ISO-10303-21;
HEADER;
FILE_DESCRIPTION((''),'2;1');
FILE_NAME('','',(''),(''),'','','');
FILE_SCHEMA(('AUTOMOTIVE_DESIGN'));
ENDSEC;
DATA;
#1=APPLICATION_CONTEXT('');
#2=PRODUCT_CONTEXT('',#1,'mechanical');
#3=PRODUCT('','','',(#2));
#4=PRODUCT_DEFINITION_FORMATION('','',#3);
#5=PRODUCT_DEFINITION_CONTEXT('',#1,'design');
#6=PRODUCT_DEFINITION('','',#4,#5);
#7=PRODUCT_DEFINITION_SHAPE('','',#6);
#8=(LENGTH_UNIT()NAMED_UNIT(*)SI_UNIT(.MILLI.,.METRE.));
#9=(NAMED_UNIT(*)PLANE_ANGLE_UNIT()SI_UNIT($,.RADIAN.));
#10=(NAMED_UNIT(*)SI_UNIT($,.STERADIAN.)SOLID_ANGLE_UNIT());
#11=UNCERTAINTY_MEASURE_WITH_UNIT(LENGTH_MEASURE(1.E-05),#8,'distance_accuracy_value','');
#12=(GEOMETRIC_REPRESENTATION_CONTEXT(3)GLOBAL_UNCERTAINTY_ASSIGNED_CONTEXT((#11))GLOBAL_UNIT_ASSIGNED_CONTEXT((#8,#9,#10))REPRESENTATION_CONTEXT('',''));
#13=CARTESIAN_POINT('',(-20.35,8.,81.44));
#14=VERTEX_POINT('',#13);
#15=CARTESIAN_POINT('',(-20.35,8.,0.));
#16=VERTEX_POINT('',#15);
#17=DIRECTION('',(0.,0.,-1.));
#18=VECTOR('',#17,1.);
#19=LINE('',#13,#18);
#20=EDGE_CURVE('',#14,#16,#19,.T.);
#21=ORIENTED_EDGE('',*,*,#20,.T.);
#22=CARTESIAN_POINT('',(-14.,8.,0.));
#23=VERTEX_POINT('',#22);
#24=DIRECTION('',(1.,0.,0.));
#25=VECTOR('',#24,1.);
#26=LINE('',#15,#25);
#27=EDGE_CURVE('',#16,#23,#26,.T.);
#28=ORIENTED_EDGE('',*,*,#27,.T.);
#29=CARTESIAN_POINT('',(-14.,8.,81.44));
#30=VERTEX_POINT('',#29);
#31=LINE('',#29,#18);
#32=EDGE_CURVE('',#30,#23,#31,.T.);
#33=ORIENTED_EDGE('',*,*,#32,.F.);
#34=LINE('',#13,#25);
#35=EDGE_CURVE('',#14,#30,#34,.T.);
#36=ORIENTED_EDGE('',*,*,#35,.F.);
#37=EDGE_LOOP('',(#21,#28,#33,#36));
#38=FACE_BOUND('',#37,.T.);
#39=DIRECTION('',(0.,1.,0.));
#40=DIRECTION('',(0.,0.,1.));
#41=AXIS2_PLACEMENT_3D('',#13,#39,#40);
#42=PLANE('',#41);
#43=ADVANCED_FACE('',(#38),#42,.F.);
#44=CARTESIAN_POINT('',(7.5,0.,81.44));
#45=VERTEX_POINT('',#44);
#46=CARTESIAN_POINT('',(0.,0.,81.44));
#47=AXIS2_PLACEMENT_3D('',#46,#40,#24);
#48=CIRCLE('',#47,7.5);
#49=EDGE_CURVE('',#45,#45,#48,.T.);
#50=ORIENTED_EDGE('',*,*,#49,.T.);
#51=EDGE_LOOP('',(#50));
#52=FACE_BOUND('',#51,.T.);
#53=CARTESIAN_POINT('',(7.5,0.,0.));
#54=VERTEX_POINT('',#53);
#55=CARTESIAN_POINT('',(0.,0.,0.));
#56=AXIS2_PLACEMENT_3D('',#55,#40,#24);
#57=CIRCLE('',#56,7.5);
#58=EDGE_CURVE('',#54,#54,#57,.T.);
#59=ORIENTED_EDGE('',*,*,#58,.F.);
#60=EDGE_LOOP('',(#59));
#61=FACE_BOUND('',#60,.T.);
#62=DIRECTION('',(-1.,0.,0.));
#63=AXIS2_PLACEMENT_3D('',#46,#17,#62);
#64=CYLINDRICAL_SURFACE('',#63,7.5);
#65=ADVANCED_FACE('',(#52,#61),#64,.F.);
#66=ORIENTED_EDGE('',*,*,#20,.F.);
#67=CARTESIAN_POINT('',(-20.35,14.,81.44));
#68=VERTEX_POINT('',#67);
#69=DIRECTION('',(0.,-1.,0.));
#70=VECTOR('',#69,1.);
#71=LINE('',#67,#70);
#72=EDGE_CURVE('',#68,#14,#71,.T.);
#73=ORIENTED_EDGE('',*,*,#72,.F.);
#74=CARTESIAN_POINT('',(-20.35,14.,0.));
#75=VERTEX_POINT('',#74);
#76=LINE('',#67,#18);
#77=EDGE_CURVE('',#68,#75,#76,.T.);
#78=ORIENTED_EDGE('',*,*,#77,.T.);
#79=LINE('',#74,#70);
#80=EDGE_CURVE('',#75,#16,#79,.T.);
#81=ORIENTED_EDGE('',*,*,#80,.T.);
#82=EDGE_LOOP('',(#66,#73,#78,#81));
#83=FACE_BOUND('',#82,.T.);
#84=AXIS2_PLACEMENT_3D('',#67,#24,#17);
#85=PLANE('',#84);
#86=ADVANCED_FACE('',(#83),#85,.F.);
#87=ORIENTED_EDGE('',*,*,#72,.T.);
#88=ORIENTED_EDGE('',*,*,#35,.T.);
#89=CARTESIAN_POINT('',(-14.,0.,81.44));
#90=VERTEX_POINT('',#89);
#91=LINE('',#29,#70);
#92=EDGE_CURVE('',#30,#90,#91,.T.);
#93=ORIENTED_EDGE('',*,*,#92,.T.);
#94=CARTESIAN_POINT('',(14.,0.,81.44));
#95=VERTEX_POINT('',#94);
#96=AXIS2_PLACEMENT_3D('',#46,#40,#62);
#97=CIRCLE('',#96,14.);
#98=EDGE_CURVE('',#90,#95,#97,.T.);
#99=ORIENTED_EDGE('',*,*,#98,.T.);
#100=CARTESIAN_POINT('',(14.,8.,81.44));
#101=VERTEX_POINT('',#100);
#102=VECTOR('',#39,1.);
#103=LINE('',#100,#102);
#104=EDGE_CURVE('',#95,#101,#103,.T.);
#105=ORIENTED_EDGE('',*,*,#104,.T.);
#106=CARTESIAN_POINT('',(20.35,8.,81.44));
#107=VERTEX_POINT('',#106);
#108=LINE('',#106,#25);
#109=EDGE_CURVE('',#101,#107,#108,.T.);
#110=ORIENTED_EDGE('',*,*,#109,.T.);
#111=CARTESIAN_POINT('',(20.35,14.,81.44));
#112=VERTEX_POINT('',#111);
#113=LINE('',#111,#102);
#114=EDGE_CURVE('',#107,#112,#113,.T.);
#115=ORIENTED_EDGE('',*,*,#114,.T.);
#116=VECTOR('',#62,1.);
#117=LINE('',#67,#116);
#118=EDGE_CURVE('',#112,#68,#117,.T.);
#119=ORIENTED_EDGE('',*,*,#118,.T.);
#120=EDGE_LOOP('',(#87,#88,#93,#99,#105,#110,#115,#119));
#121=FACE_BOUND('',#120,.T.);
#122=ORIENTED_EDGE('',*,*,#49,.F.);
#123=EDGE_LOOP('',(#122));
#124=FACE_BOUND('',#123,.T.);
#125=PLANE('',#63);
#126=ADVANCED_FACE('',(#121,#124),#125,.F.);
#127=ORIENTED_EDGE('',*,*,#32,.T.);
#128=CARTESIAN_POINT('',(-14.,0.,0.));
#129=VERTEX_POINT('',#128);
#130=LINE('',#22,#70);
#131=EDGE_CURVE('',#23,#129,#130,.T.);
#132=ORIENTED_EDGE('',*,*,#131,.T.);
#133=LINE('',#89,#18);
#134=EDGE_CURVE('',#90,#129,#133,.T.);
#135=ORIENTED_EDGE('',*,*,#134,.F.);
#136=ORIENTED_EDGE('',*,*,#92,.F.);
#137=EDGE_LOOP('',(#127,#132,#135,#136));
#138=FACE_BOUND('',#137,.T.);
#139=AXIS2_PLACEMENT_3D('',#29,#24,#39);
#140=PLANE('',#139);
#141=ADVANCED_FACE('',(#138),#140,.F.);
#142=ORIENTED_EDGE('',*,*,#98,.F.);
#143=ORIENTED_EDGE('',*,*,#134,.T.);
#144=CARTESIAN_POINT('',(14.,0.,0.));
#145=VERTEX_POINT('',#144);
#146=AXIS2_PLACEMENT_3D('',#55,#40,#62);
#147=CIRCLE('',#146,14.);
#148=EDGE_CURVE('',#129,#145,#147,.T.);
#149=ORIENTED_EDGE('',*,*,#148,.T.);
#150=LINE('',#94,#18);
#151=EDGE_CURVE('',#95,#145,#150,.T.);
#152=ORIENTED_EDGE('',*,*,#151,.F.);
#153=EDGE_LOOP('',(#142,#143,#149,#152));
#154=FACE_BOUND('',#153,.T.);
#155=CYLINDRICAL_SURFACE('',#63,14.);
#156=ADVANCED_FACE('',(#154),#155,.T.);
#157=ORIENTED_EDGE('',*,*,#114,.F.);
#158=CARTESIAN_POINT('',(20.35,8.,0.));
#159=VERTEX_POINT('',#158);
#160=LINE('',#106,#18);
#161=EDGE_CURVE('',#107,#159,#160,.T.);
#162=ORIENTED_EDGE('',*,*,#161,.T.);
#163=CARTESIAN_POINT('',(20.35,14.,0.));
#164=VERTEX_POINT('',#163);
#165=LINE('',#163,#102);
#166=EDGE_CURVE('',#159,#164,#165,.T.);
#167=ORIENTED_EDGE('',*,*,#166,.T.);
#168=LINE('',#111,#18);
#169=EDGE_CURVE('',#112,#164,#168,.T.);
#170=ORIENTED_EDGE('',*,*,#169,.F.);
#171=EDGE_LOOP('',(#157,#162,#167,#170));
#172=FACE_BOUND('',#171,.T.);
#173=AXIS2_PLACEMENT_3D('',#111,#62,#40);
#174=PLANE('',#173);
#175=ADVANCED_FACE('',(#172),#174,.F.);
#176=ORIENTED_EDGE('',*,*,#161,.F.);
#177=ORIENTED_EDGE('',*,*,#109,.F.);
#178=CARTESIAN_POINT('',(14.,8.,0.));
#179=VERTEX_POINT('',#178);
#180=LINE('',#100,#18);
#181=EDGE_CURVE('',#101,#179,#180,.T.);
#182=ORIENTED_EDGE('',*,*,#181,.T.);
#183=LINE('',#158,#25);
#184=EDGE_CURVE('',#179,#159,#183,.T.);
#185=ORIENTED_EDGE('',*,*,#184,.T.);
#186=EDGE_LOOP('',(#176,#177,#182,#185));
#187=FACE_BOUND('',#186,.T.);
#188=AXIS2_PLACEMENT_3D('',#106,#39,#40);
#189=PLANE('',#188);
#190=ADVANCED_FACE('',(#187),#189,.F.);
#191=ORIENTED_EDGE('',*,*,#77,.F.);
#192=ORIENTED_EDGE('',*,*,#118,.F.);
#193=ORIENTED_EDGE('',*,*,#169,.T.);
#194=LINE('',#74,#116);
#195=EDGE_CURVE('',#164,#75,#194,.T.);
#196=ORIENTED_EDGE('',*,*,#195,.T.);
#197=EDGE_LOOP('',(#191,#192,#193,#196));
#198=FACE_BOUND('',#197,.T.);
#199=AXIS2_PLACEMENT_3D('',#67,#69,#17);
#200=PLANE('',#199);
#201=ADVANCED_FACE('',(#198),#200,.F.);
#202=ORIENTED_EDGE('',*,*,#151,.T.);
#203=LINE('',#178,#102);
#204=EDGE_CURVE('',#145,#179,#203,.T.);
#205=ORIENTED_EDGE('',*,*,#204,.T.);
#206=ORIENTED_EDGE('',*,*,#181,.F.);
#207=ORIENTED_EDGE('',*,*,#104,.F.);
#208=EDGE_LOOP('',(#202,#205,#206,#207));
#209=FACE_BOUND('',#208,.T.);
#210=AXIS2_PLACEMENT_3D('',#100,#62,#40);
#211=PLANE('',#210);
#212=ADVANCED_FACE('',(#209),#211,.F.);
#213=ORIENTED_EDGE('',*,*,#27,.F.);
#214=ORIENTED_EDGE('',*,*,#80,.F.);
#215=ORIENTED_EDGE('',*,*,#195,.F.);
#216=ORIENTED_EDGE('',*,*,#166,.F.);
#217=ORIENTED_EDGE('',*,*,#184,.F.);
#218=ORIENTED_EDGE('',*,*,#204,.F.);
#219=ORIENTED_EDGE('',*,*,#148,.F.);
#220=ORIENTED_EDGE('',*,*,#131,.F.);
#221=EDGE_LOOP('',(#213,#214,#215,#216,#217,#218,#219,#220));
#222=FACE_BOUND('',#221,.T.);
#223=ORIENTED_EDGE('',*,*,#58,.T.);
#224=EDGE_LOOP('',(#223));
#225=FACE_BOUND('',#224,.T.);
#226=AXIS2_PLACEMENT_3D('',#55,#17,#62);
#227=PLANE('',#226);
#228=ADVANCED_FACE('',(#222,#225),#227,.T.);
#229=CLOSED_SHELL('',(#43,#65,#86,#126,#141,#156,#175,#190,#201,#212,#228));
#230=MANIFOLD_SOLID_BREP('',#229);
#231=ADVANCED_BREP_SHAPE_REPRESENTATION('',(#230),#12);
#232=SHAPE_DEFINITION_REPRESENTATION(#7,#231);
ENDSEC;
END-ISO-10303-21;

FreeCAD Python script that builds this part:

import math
import FreeCAD as App
import Part
import Sketcher

V = App.Vector
Q = App.Units.Quantity

doc = App.newDocument("Part")
body = doc.addObject("PartDesign::Body", "Body")

sketch1 = doc.addObject("Sketcher::SketchObject", "Sketch")
body.addObject(sketch1)
sketch1.AttachmentSupport = (doc.XY_Plane, [""])
sketch1.MapMode = "FlatFace"
sketch1.addGeometry(Part.LineSegment(V(20.35, 14, 0), V(-20.35, 14, 0)), False)
sketch1.addGeometry(Part.LineSegment(V(-20.35, 14, 0), V(-20.35, 8, 0)), False)
sketch1.addGeometry(Part.LineSegment(V(-20.35, 8, 0), V(-14, 8, 0)), False)
sketch1.addGeometry(Part.LineSegment(V(-14, 8, 0), V(-14, 0, 0)), False)
sketch1.addGeometry(Part.ArcOfCircle(Part.Circle(V(0, 0, 0), V(0, 0, 1), 14), math.radians(180), math.radians(360)), False)
sketch1.addGeometry(Part.LineSegment(V(14, 0, 0), V(14, 8, 0)), False)
sketch1.addGeometry(Part.LineSegment(V(14, 8, 0), V(20.35, 8, 0)), False)
sketch1.addGeometry(Part.LineSegment(V(20.35, 8, 0), V(20.35, 14, 0)), False)
sketch1.addGeometry(Part.Circle(V(0, 0, 0), V(0, 0, 1), 7.5), False)
sketch1.addConstraint(Sketcher.Constraint("Coincident", 0, 2, 1, 1))
sketch1.addConstraint(Sketcher.Constraint("Coincident", 1, 2, 2, 1))
sketch1.addConstraint(Sketcher.Constraint("Coincident", 2, 2, 3, 1))
sketch1.addConstraint(Sketcher.Constraint("Tangent", 3, 2, 4, 1))
sketch1.addConstraint(Sketcher.Constraint("Tangent", 4, 2, 5, 1))
sketch1.addConstraint(Sketcher.Constraint("Coincident", 5, 2, 6, 1))
sketch1.addConstraint(Sketcher.Constraint("Coincident", 6, 2, 7, 1))
sketch1.addConstraint(Sketcher.Constraint("Coincident", 7, 2, 0, 1))
sketch1.addConstraint(Sketcher.Constraint("Horizontal", 0))
sketch1.addConstraint(Sketcher.Constraint("Vertical", 1))
sketch1.addConstraint(Sketcher.Constraint("Horizontal", 2))
sketch1.addConstraint(Sketcher.Constraint("Vertical", 3))
sketch1.addConstraint(Sketcher.Constraint("Vertical", 5))
sketch1.addConstraint(Sketcher.Constraint("Horizontal", 6))
sketch1.addConstraint(Sketcher.Constraint("Vertical", 7))
sketch1.addConstraint(Sketcher.Constraint("Coincident", 4, 3, -1, 1))
sketch1.addConstraint(Sketcher.Constraint("Coincident", 8, 3, -1, 1))
sketch1.addConstraint(Sketcher.Constraint("Symmetric", 1, 2, 6, 2, -2))
sketch1.addConstraint(Sketcher.Constraint("Diameter", 8, Q("15 mm")))
sketch1.addConstraint(Sketcher.Constraint("Radius", 4, Q("14 mm")))
sketch1.addConstraint(Sketcher.Constraint("DistanceY", 1, 2, 1, 1, Q("6 mm")))
sketch1.addConstraint(Sketcher.Constraint("DistanceY", 3, 2, 3, 1, Q("8 mm")))
sketch1.addConstraint(Sketcher.Constraint("DistanceX", 0, 2, 0, 1, Q("40.7 mm")))
pad1 = doc.addObject("PartDesign::Pad", "Pad")
body.addObject(pad1)
pad1.Profile = sketch1
pad1.Length = 81.44

doc.recompute()
